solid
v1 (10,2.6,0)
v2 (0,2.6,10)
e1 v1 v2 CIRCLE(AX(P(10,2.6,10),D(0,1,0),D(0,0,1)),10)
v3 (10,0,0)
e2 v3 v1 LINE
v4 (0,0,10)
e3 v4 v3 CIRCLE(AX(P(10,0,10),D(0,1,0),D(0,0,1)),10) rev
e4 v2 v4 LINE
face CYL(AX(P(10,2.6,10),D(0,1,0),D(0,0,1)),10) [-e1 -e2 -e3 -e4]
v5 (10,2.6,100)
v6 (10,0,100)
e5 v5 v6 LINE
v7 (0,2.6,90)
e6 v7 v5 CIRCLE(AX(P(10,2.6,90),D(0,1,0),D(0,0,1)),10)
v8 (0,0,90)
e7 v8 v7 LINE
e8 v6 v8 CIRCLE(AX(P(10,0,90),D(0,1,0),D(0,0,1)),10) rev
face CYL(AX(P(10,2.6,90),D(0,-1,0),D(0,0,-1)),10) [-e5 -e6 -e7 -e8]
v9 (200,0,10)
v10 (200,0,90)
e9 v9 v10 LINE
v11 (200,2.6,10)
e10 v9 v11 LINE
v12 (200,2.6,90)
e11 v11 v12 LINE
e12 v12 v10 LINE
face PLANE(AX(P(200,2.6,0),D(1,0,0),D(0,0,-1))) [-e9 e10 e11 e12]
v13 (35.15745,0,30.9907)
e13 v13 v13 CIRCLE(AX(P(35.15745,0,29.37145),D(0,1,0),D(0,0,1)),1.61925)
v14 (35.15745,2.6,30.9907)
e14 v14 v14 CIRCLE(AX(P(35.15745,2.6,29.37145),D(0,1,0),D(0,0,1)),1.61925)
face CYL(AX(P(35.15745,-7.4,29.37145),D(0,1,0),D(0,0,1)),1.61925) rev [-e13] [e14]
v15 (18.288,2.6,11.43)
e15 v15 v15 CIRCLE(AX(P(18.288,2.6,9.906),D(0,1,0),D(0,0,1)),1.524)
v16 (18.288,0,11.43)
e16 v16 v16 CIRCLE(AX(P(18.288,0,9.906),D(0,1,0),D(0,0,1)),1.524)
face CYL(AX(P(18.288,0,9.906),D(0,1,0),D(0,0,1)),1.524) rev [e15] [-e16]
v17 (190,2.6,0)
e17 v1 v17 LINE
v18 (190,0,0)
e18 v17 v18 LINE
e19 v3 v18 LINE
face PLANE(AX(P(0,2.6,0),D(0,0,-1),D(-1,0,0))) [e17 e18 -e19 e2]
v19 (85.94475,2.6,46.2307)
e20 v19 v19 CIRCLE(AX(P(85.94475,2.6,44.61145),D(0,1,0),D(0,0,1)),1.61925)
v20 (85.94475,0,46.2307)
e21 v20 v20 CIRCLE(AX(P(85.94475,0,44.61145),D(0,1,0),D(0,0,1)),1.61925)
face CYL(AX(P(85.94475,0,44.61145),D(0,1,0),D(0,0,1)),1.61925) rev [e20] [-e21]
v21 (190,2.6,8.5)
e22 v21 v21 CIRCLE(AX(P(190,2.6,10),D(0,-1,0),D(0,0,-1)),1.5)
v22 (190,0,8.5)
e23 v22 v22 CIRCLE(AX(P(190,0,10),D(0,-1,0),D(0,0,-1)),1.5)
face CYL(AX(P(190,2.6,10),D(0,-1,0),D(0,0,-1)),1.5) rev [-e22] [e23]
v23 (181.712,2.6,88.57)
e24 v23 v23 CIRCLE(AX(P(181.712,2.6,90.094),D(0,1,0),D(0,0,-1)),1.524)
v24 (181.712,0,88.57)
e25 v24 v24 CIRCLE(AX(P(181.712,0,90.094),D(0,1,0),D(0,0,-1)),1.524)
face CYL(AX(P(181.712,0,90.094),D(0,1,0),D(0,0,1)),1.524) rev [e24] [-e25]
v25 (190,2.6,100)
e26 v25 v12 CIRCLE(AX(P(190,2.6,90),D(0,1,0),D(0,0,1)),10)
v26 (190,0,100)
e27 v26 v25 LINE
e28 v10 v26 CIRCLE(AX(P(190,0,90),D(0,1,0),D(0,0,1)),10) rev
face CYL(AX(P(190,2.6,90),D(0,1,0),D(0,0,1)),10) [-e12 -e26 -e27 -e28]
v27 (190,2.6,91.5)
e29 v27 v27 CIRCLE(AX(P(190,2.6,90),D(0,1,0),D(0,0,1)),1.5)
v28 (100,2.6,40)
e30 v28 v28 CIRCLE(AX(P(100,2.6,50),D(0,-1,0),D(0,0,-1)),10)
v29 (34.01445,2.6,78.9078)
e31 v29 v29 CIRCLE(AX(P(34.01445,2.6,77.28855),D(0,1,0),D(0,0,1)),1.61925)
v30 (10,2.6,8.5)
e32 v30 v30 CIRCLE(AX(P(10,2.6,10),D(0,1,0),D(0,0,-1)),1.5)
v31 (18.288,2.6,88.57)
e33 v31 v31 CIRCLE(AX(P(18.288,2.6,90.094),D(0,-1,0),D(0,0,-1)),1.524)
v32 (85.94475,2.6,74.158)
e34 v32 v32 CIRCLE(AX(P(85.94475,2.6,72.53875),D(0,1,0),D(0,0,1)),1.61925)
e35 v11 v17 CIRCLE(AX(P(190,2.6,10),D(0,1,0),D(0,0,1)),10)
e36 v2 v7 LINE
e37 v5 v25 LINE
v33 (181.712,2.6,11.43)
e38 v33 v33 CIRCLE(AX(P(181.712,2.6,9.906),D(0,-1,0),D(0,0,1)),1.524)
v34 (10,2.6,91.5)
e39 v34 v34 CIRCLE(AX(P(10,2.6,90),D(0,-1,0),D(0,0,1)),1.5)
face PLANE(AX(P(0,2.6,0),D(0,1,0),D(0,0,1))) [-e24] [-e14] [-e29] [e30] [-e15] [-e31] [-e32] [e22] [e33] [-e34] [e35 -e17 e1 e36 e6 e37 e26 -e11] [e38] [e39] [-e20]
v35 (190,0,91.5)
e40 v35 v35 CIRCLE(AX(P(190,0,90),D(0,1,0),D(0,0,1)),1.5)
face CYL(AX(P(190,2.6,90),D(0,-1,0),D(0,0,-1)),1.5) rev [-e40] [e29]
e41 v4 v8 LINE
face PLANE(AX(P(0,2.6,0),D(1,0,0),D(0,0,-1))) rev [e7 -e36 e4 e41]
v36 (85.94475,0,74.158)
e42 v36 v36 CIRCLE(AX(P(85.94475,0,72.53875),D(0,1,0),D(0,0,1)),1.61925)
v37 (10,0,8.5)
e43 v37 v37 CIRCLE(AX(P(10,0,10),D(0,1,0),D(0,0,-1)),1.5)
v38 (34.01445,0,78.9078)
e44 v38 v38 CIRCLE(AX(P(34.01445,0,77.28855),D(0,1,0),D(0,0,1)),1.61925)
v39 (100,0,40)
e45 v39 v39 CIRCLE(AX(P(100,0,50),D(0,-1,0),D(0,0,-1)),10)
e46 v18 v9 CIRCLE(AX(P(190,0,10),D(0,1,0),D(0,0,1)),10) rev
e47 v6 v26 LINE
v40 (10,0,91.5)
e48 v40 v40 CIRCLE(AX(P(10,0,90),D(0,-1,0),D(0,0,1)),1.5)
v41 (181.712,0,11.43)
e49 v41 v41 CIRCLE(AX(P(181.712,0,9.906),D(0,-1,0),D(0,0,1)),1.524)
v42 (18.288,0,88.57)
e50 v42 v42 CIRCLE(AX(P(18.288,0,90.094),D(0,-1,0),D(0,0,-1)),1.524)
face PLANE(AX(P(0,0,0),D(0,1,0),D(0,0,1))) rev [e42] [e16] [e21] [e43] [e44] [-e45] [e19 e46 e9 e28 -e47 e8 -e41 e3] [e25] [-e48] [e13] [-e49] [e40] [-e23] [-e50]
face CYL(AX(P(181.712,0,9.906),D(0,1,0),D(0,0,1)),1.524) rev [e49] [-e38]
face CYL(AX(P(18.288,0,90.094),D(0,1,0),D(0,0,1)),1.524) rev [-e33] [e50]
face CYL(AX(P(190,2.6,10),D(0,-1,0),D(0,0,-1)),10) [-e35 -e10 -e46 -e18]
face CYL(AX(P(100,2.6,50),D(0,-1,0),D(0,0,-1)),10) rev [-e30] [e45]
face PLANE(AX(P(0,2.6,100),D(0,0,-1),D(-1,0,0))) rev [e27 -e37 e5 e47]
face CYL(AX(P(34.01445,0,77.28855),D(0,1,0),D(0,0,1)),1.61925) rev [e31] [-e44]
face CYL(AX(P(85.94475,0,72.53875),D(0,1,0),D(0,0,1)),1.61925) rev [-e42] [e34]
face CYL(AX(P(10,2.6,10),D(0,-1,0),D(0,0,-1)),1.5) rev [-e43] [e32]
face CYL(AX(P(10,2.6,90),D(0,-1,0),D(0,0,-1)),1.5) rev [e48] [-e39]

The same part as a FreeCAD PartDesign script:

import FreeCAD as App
import Part
import Sketcher
Q = App.Units.Quantity


def edges_at(feature, points):
    """Names of the edges that pass closest to the given points."""
    edges = feature.Shape.Edges
    near = lambda p: min(range(len(edges)), key=lambda i: edges[i].distToShape(Part.Vertex(*p))[0])
    return sorted({f"Edge{near(p) + 1}" for p in points})


def add_polygon(sketch, points):
    """Adds a closed chain of lines whose ends are joined by coincident constraints."""
    first, n = sketch.GeometryCount, len(points)
    for a, b in zip(points, points[1:] + points[:1]):
        sketch.addGeometry(Part.LineSegment(App.Vector(*a, 0), App.Vector(*b, 0)), False)
    for i in range(n):
        sketch.addConstraint(Sketcher.Constraint("Coincident", first + i, 2, first + (i + 1) % n, 1))

doc = App.newDocument("Part")
params = doc.addObject("Spreadsheet::Sheet", "Params")
for row, (alias, value) in enumerate([
    ("sketch1_width", "200 mm"),
    ("sketch1_height", "100 mm"),
    ("pad1_length", "2.6 mm"),
    ("fillet_radius", "10 mm"),
    ("sketch2_diameter", "3 mm"),
    ("pocket1_length", "2.6 mm"),
    ("sketch3_diameter", "3 mm"),
    ("pocket2_length", "2.6 mm"),
    ("pocket3_length", "10 mm"),
    ("sketch8_diameter", "20 mm"),
    ("pocket8_length", "2.6 mm"),
    ("pocket9_length", "2.6 mm"),
], start=1):
    params.set(f"A{row}", alias)
    params.set(f"B{row}", "=" + value)
    params.setAlias(f"B{row}", alias)

body = doc.addObject("PartDesign::Body", "Body")

# Sketch on XZ plane
sketch1 = body.newObject("Sketcher::SketchObject", "Sketch")
sketch1.AttachmentSupport = (doc.getObject("XZ_Plane"), [""])
sketch1.MapMode = "FlatFace"
add_polygon(sketch1, [(0, 0), (0, 100), (200, 100), (200, 0)])  # lines 0-3
sketch1.addConstraint(Sketcher.Constraint("Vertical", 0))
sketch1.addConstraint(Sketcher.Constraint("Horizontal", 1))
sketch1.addConstraint(Sketcher.Constraint("Vertical", 2))
sketch1.addConstraint(Sketcher.Constraint("Horizontal", 3))
sketch1.addConstraint(Sketcher.Constraint("Coincident", 3, 2, -1, 1))
sketch1.addConstraint(Sketcher.Constraint("DistanceX", 1, 1, 1, 2, Q("200 mm")))
sketch1.addConstraint(Sketcher.Constraint("DistanceY", 0, 1, 0, 2, Q("100 mm")))
sketch1.setExpression("Constraints[9]", "Params.sketch1_width")
sketch1.setExpression("Constraints[10]", "Params.sketch1_height")
pad1 = body.newObject("PartDesign::Pad", "Pad")
pad1.Profile = sketch1
pad1.setExpression("Length", "Params.pad1_length")
pad1.Reversed = True
doc.recompute()

fillet = body.newObject("PartDesign::Fillet", "Fillet")
fillet.Base = (pad1, edges_at(pad1, [
    (0, 1.3, 0),
    (200, 1.3, 0),
    (200, 1.3, 100),
    (0, 1.3, 100),
]))
fillet.setExpression("Radius", "Params.fillet_radius")

# Sketch on XZ plane
sketch2 = body.newObject("Sketcher::SketchObject", "Sketch001")
sketch2.AttachmentSupport = (doc.getObject("XZ_Plane"), [""])
sketch2.MapMode = "FlatFace"
sketch2.addGeometry(Part.Circle(App.Vector(190, 10, 0), App.Vector(0, 0, 1), 1.5), False)
sketch2.addConstraint(Sketcher.Constraint("Diameter", 0, Q("3 mm")))
sketch2.addConstraint(Sketcher.Constraint("DistanceX", -1, 1, 0, 3, Q("190 mm")))
sketch2.addConstraint(Sketcher.Constraint("DistanceY", -1, 1, 0, 3, Q("10 mm")))
sketch2.setExpression("Constraints[0]", "Params.sketch2_diameter")
pocket1 = body.newObject("PartDesign::Pocket", "Pocket")
pocket1.Profile = sketch2
pocket1.setExpression("Length", "Params.pocket1_length")
doc.recompute()

datumplane = body.newObject("PartDesign::Plane", "DatumPlane")
datumplane.AttachmentSupport = (doc.getObject("YZ_Plane"), [""])
datumplane.MapMode = "FlatFace"
datumplane.AttachmentOffset = App.Placement(App.Vector(0, 0, 100), App.Rotation())
mirrored = body.newObject("PartDesign::Mirrored", "Mirrored")
mirrored.Originals = [pocket1]
mirrored.MirrorPlane = (datumplane, [""])
body.Tip = mirrored
doc.recompute()

datumplane2 = body.newObject("PartDesign::Plane", "DatumPlane001")
datumplane2.AttachmentSupport = (doc.getObject("XY_Plane"), [""])
datumplane2.MapMode = "FlatFace"
datumplane2.AttachmentOffset = App.Placement(App.Vector(0, 0, 50), App.Rotation())
mirrored2 = body.newObject("PartDesign::Mirrored", "Mirrored001")
mirrored2.Originals = [pocket1]
mirrored2.MirrorPlane = (datumplane2, [""])
body.Tip = mirrored2

# Sketch on XZ plane
sketch3 = body.newObject("Sketcher::SketchObject", "Sketch002")
sketch3.AttachmentSupport = (doc.getObject("XZ_Plane"), [""])
sketch3.MapMode = "FlatFace"
sketch3.addGeometry(Part.Circle(App.Vector(10, 90, 0), App.Vector(0, 0, 1), 1.5), False)
sketch3.addConstraint(Sketcher.Constraint("Diameter", 0, Q("3 mm")))
sketch3.addConstraint(Sketcher.Constraint("DistanceX", -1, 1, 0, 3, Q("10 mm")))
sketch3.addConstraint(Sketcher.Constraint("DistanceY", -1, 1, 0, 3, Q("90 mm")))
sketch3.setExpression("Constraints[0]", "Params.sketch3_diameter")
pocket2 = body.newObject("PartDesign::Pocket", "Pocket001")
pocket2.Profile = sketch3
pocket2.setExpression("Length", "Params.pocket2_length")

# Sketch on XZ plane
sketch4 = body.newObject("Sketcher::SketchObject", "Sketch003")
sketch4.AttachmentSupport = (doc.getObject("XZ_Plane"), [""])
sketch4.MapMode = "FlatFace"
sketch4.AttachmentOffset = App.Placement(App.Vector(0, 0, -2.6), App.Rotation())
sketch4.addGeometry(Part.Circle(App.Vector(35.2, 29.4, 0), App.Vector(0, 0, 1), 1.6), False)
sketch4.addConstraint(Sketcher.Constraint("Diameter", 0, Q("3.2385 mm")))
sketch4.addConstraint(Sketcher.Constraint("DistanceX", -1, 1, 0, 3, Q("35.15745 mm")))
sketch4.addConstraint(Sketcher.Constraint("DistanceY", -1, 1, 0, 3, Q("29.37145 mm")))
pocket3 = body.newObject("PartDesign::Pocket", "Pocket002")
pocket3.Profile = sketch4
pocket3.setExpression("Length", "Params.pocket3_length")
pocket3.Reversed = True

# Sketch on XZ plane
sketch5 = body.newObject("Sketcher::SketchObject", "Sketch004")
sketch5.AttachmentSupport = (doc.getObject("XZ_Plane"), [""])
sketch5.MapMode = "FlatFace"
sketch5.AttachmentOffset = App.Placement(App.Vector(0, 0, -2.6), App.Rotation())
sketch5.addGeometry(Part.Circle(App.Vector(85.9, 44.6, 0), App.Vector(0, 0, 1), 1.6), False)
sketch5.addConstraint(Sketcher.Constraint("Diameter", 0, Q("3.2385 mm")))
sketch5.addConstraint(Sketcher.Constraint("DistanceX", -1, 1, 0, 3, Q("85.94475 mm")))
sketch5.addConstraint(Sketcher.Constraint("DistanceY", -1, 1, 0, 3, Q("44.61145 mm")))
pocket4 = body.newObject("PartDesign::Pocket", "Pocket003")
pocket4.Profile = sketch5
pocket4.Type = "ThroughAll"
pocket4.Reversed = True

# Sketch on XZ plane
sketch6 = body.newObject("Sketcher::SketchObject", "Sketch005")
sketch6.AttachmentSupport = (doc.getObject("XZ_Plane"), [""])
sketch6.MapMode = "FlatFace"
sketch6.AttachmentOffset = App.Placement(App.Vector(0, 0, -2.6), App.Rotation())
sketch6.addGeometry(Part.Circle(App.Vector(34, 77.3, 0), App.Vector(0, 0, 1), 1.6), False)
sketch6.addConstraint(Sketcher.Constraint("Diameter", 0, Q("3.2385 mm")))
sketch6.addConstraint(Sketcher.Constraint("DistanceX", -1, 1, 0, 3, Q("34.01445 mm")))
sketch6.addConstraint(Sketcher.Constraint("DistanceY", -1, 1, 0, 3, Q("77.28855 mm")))
pocket5 = body.newObject("PartDesign::Pocket", "Pocket004")
pocket5.Profile = sketch6
pocket5.Type = "ThroughAll"
pocket5.Reversed = True

# Sketch on XZ plane
sketch7 = body.newObject("Sketcher::SketchObject", "Sketch006")
sketch7.AttachmentSupport = (doc.getObject("XZ_Plane"), [""])
sketch7.MapMode = "FlatFace"
sketch7.AttachmentOffset = App.Placement(App.Vector(0, 0, -2.6), App.Rotation())
sketch7.addGeometry(Part.Circle(App.Vector(85.9, 72.5, 0), App.Vector(0, 0, 1), 1.6), False)
sketch7.addConstraint(Sketcher.Constraint("Diameter", 0, Q("3.2385 mm")))
sketch7.addConstraint(Sketcher.Constraint("DistanceX", -1, 1, 0, 3, Q("85.94475 mm")))
sketch7.addConstraint(Sketcher.Constraint("DistanceY", -1, 1, 0, 3, Q("72.53875 mm")))
pocket6 = body.newObject("PartDesign::Pocket", "Pocket005")
pocket6.Profile = sketch7
pocket6.Type = "ThroughAll"
pocket6.Reversed = True

# Sketch on XZ plane
sketch8 = body.newObject("Sketcher::SketchObject", "Sketch007")
sketch8.AttachmentSupport = (doc.getObject("XZ_Plane"), [""])
sketch8.MapMode = "FlatFace"
sketch8.addGeometry(Part.Circle(App.Vector(100, 50, 0), App.Vector(0, 0, 1), 10), False)
sketch8.addConstraint(Sketcher.Constraint("Diameter", 0, Q("20 mm")))
sketch8.addConstraint(Sketcher.Constraint("DistanceX", -1, 1, 0, 3, Q("100 mm")))
sketch8.addConstraint(Sketcher.Constraint("DistanceY", -1, 1, 0, 3, Q("50 mm")))
sketch8.setExpression("Constraints[0]", "Params.sketch8_diameter")
pocket7 = body.newObject("PartDesign::Pocket", "Pocket006")
pocket7.Profile = sketch8
pocket7.Type = "ThroughAll"

# Sketch on XZ plane
sketch9 = body.newObject("Sketcher::SketchObject", "Sketch008")
sketch9.AttachmentSupport = (doc.getObject("XZ_Plane"), [""])
sketch9.MapMode = "FlatFace"
sketch9.AttachmentOffset = App.Placement(App.Vector(0, 0, -2.6), App.Rotation())
sketch9.addGeometry(Part.Circle(App.Vector(18.3, 9.9, 0), App.Vector(0, 0, 1), 1.5), False)
sketch9.addConstraint(Sketcher.Constraint("Diameter", 0, Q("3.048 mm")))
sketch9.addConstraint(Sketcher.Constraint("DistanceX", -1, 1, 0, 3, Q("18.288 mm")))
sketch9.addConstraint(Sketcher.Constraint("DistanceY", -1, 1, 0, 3, Q("9.906 mm")))
pocket8 = body.newObject("PartDesign::Pocket", "Pocket007")
pocket8.Profile = sketch9
pocket8.setExpression("Length", "Params.pocket8_length")
pocket8.Reversed = True
doc.recompute()

datumplane3 = body.newObject("PartDesign::Plane", "DatumPlane002")
datumplane3.AttachmentSupport = (doc.getObject("YZ_Plane"), [""])
datumplane3.MapMode = "FlatFace"
datumplane3.AttachmentOffset = App.Placement(App.Vector(0, 0, 100), App.Rotation())
mirrored3 = body.newObject("PartDesign::Mirrored", "Mirrored002")
mirrored3.Originals = [pocket8]
mirrored3.MirrorPlane = (datumplane3, [""])
body.Tip = mirrored3
doc.recompute()

datumplane4 = body.newObject("PartDesign::Plane", "DatumPlane003")
datumplane4.AttachmentSupport = (doc.getObject("XY_Plane"), [""])
datumplane4.MapMode = "FlatFace"
datumplane4.AttachmentOffset = App.Placement(App.Vector(0, 0, 50), App.Rotation())
mirrored4 = body.newObject("PartDesign::Mirrored", "Mirrored003")
mirrored4.Originals = [pocket8]
mirrored4.MirrorPlane = (datumplane4, [""])
body.Tip = mirrored4

# Sketch on XZ plane
sketch10 = body.newObject("Sketcher::SketchObject", "Sketch009")
sketch10.AttachmentSupport = (doc.getObject("XZ_Plane"), [""])
sketch10.MapMode = "FlatFace"
sketch10.AttachmentOffset = App.Placement(App.Vector(0, 0, -2.6), App.Rotation())
sketch10.addGeometry(Part.Circle(App.Vector(181.7, 90.1, 0), App.Vector(0, 0, 1), 1.5), False)
sketch10.addConstraint(Sketcher.Constraint("Diameter", 0, Q("3.048 mm")))
sketch10.addConstraint(Sketcher.Constraint("DistanceX", -1, 1, 0, 3, Q("181.712 mm")))
sketch10.addConstraint(Sketcher.Constraint("DistanceY", -1, 1, 0, 3, Q("90.094 mm")))
pocket9 = body.newObject("PartDesign::Pocket", "Pocket008")
pocket9.Profile = sketch10
pocket9.setExpression("Length", "Params.pocket9_length")
pocket9.Reversed = True

doc.recompute()
